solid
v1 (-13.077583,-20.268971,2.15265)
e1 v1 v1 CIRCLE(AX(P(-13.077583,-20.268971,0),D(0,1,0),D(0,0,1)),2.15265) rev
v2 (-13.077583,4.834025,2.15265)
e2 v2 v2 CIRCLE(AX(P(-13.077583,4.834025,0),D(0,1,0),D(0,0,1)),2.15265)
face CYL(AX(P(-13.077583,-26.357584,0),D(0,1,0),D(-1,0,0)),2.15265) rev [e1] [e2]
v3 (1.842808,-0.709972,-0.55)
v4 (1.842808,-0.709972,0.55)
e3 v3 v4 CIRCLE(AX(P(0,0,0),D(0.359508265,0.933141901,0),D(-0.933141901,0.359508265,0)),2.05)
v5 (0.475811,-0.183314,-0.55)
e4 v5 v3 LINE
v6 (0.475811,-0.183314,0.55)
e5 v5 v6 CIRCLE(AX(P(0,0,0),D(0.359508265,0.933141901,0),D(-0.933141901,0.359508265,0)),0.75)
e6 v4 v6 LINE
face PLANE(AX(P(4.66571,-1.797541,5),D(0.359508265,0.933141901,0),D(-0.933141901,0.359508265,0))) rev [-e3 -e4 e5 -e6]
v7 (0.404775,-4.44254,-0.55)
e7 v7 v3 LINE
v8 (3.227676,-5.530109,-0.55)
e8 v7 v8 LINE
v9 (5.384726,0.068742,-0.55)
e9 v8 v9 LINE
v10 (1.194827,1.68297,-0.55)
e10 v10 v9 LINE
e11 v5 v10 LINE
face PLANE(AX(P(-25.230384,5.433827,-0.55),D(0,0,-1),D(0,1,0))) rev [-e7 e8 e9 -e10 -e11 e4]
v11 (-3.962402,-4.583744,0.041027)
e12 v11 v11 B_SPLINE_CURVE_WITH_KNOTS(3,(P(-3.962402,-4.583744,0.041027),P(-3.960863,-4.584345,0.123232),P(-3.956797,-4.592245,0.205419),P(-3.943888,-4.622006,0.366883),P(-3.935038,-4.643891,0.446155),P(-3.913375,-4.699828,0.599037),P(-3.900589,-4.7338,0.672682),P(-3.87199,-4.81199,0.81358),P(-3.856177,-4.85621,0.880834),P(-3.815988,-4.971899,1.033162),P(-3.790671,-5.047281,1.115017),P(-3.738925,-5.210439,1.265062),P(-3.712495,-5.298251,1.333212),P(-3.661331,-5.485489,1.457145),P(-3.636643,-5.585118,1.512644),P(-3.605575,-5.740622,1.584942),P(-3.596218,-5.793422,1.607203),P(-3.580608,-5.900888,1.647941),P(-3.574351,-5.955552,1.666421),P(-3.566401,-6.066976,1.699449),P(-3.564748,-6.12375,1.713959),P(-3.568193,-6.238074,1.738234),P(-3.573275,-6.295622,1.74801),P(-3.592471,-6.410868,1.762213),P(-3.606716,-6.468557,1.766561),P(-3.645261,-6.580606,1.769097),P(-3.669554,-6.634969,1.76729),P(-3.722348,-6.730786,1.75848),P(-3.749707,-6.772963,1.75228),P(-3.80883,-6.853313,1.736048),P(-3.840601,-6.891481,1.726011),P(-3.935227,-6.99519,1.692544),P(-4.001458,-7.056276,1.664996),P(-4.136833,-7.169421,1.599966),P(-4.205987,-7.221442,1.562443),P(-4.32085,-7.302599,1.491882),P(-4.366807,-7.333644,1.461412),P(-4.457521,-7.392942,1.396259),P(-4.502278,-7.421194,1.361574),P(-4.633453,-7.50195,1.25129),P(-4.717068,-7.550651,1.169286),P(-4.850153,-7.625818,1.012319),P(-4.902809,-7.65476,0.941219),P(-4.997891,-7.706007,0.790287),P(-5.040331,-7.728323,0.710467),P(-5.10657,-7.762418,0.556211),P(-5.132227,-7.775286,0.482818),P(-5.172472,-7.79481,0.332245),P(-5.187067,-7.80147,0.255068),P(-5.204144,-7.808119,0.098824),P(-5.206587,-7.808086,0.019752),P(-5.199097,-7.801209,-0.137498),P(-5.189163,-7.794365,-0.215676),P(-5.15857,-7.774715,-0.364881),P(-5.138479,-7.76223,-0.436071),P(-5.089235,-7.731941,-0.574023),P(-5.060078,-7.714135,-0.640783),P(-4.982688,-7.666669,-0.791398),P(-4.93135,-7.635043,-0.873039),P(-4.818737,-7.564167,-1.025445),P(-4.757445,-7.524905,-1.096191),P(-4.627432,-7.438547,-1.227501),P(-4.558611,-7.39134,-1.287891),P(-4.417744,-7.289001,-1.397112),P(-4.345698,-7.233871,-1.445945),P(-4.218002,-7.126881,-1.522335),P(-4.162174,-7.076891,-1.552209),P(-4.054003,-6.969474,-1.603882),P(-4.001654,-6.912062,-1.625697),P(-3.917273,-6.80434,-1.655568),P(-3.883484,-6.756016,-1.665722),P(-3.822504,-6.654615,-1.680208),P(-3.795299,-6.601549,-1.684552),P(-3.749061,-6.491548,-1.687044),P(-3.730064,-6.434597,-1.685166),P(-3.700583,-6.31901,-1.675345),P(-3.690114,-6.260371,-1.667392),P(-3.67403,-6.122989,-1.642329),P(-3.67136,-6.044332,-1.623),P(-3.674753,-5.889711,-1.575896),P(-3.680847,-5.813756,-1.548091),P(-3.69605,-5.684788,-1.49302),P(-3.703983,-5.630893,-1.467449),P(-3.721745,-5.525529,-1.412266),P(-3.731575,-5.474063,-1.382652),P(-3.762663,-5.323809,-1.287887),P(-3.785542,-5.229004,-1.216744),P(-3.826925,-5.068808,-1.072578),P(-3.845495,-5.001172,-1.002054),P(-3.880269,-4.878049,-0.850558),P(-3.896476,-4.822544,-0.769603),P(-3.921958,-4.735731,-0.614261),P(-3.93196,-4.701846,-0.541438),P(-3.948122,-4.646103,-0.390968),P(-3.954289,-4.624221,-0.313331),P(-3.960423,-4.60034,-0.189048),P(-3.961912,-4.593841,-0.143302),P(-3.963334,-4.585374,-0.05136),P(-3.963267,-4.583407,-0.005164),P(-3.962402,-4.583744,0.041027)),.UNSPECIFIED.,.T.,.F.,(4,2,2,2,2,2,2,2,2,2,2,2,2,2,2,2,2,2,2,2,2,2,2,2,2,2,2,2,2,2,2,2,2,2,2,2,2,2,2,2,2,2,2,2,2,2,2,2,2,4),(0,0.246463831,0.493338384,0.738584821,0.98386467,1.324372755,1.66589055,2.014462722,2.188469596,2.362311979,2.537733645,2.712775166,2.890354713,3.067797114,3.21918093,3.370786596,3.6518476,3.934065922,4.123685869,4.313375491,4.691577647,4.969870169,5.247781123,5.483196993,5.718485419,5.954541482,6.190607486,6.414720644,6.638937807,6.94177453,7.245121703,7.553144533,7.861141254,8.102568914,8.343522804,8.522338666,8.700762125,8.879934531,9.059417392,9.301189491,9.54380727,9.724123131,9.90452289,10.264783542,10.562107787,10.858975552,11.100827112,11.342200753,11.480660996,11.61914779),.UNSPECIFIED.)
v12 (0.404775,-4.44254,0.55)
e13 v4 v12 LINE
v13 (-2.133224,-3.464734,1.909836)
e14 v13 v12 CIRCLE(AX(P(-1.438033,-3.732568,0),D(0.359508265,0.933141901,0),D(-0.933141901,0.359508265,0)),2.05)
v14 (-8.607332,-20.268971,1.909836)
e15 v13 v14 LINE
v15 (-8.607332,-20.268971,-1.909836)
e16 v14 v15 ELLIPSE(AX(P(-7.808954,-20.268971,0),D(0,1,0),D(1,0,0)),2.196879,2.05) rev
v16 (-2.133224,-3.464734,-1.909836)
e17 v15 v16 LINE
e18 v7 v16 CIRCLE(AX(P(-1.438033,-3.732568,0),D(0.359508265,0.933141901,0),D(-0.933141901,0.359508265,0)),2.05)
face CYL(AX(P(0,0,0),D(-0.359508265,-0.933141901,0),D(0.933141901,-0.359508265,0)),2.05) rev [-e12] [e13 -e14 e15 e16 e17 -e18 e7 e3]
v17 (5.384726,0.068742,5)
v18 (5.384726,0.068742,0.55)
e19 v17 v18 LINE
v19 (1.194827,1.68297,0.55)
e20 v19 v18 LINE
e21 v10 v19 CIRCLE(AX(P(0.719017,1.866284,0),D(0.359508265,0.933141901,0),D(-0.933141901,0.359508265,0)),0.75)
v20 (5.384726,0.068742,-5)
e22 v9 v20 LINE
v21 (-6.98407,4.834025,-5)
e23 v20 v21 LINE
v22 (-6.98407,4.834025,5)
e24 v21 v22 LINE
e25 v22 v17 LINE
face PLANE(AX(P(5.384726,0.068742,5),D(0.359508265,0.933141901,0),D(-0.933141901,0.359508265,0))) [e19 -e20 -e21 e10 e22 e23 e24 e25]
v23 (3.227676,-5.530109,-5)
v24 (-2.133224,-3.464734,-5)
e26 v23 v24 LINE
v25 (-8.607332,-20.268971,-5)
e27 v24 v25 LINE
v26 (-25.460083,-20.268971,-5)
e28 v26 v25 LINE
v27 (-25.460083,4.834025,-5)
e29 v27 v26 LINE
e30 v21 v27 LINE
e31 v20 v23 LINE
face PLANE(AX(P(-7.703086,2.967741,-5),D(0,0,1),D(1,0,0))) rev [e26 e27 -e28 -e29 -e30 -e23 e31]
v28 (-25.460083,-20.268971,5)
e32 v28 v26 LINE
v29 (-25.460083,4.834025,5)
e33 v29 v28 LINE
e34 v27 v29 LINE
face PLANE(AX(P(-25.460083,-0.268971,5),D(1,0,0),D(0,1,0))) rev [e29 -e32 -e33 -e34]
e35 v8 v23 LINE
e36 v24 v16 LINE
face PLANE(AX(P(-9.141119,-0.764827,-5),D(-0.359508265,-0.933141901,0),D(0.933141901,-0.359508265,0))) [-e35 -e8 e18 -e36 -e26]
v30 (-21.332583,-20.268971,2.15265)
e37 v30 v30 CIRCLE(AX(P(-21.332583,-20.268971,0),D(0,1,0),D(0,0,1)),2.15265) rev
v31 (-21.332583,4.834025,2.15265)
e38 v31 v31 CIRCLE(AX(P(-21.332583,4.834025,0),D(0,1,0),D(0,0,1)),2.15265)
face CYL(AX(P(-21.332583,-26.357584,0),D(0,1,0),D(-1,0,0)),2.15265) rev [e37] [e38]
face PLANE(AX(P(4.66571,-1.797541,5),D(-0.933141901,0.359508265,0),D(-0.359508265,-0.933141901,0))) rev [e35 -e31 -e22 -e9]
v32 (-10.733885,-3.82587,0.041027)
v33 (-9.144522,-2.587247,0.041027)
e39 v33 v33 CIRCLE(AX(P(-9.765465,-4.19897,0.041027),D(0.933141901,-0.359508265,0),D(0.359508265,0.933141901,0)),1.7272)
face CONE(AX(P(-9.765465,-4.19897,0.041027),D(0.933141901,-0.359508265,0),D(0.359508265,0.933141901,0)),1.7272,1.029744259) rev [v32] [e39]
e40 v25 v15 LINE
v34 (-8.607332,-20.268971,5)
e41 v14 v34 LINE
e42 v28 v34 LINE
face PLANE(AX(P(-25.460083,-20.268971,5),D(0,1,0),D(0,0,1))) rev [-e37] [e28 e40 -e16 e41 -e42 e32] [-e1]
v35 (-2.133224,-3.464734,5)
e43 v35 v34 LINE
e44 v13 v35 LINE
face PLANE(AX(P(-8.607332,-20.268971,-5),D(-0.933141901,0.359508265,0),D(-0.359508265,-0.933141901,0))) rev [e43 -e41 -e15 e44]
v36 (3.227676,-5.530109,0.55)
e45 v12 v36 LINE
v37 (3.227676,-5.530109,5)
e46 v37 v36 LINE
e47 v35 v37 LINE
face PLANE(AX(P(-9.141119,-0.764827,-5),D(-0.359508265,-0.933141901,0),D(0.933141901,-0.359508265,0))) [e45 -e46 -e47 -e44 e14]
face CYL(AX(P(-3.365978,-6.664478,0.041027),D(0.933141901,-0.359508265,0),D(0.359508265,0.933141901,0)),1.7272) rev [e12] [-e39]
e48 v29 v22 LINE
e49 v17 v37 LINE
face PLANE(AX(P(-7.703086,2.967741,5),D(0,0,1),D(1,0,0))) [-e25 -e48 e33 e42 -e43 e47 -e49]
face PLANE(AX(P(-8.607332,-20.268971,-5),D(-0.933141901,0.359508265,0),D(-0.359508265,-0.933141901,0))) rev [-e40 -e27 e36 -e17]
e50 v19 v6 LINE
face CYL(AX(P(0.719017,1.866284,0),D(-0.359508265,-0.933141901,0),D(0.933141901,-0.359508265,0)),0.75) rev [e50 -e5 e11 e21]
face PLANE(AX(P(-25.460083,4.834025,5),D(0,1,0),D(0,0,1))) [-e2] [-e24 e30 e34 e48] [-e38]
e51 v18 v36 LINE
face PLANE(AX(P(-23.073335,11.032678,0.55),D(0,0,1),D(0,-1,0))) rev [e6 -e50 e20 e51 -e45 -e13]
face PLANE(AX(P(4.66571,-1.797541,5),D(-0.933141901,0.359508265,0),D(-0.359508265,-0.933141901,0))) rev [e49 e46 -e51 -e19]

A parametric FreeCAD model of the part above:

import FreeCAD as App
import Part
import Sketcher
from FreeCAD import Vector
Q = App.Units.Quantity


def add_polygon(sketch, points):
    """Adds a closed chain of lines whose ends are joined by coincident constraints."""
    first, n = sketch.GeometryCount, len(points)
    for a, b in zip(points, points[1:] + points[:1]):
        sketch.addGeometry(Part.LineSegment(App.Vector(*a, 0), App.Vector(*b, 0)), False)
    for i in range(n):
        sketch.addConstraint(Sketcher.Constraint("Coincident", first + i, 2, first + (i + 1) % n, 1))

doc = App.newDocument("Part")
body = doc.addObject("PartDesign::Body", "Body")

# Sketch on XY plane
sketch1 = body.newObject("Sketcher::SketchObject", "Sketch")
sketch1.AttachmentSupport = (doc.getObject("XY_Plane"), [""])
sketch1.MapMode = "FlatFace"
add_polygon(sketch1, [(7.7, -3), (-7.7, 3), (-9, -0.3), (-25.5, -0.3), (-25.5, -20.3), (1, -20.3)])  # lines 0-5
sketch1.addConstraint([
    Sketcher.Constraint("Horizontal", 2),
    Sketcher.Constraint("Vertical", 3),
    Sketcher.Constraint("Horizontal", 4),
    Sketcher.Constraint("Symmetric", 0, 2, 5, 2, -1, 1),
    Sketcher.Constraint("Perpendicular", 0, 1),
    Sketcher.Constraint("Parallel", 1, 5),
    Sketcher.Constraint("DistanceY", 3, 2, 3, 1, Q("20 mm")),
    Sketcher.Constraint("DistanceX", 2, 2, 2, 1, Q("16.51 mm")),
    Sketcher.Constraint("Angle", 0, Q("158.93 deg")),
    Sketcher.Constraint("Distance", 0, Q("16.51 mm")),
    Sketcher.Constraint("DistanceY", 1, 2, -1, 1, Q("0.268971 mm")),
])
pad1 = body.newObject("PartDesign::Pad", "Pad")
pad1.Profile = sketch1
pad1.Length = 10
pad1.Midplane = True

# Sketch on XY plane
sketch2 = body.newObject("Sketcher::SketchObject", "Sketch001")
sketch2.AttachmentSupport = (doc.getObject("XY_Plane"), [""])
sketch2.MapMode = "FlatFace"
sketch2.AttachmentOffset = App.Placement(Vector(0, 0, 5), App.Rotation())
add_polygon(sketch2, [(7.7, -3), (-7.7, 3), (-9.1, -0.8), (-2.1, -3.5), (-8.6, -20.3), (1, -20.3)])  # lines 0-5
sketch2.addConstraint([
    Sketcher.Constraint("Horizontal", 4),
    Sketcher.Constraint("Symmetric", 0, 2, 5, 2, -1, 1),
    Sketcher.Constraint("Perpendicular", 0, 1),
    Sketcher.Constraint("Perpendicular", 1, 2),
    Sketcher.Constraint("Perpendicular", 2, 3),
    Sketcher.Constraint("Parallel", 3, 5),
    Sketcher.Constraint("Distance", 1, Q("4 mm")),
    Sketcher.Constraint("Angle", 0, Q("158.93 deg")),
    Sketcher.Constraint("Distance", 0, Q("16.51 mm")),
    Sketcher.Constraint("Distance", 2, Q("7.51 mm")),
    Sketcher.Constraint("DistanceY", 3, 2, -1, 1, Q("20.268971 mm")),
])
pocket1 = body.newObject("PartDesign::Pocket", "Pocket")
pocket1.Profile = sketch2
pocket1.Type = "ThroughAll"

# Sketch on XZ plane
sketch3 = body.newObject("Sketcher::SketchObject", "Sketch002")
sketch3.AttachmentSupport = (doc.getObject("XZ_Plane"), [""])
sketch3.MapMode = "FlatFace"
sketch3.AttachmentOffset = App.Placement(Vector(0, 0, 0.268971), App.Rotation())
sketch3.addGeometry(Part.Circle(Vector(-21.3, 0, 0), Vector(0, 0, 1), 2.2), False)
sketch3.addConstraint([
    Sketcher.Constraint("PointOnObject", 0, 3, -1),
    Sketcher.Constraint("Diameter", 0, Q("4.3053 mm")),
    Sketcher.Constraint("DistanceX", 0, 3, -1, 1, Q("21.332583 mm")),
])
pocket2 = body.newObject("PartDesign::Pocket", "Pocket001")
pocket2.Profile = sketch3
pocket2.Type = "UpToFirst"
pocket2.Reversed = True

# Sketch on XZ plane
sketch4 = body.newObject("Sketcher::SketchObject", "Sketch003")
sketch4.AttachmentSupport = (doc.getObject("XZ_Plane"), [""])
sketch4.MapMode = "FlatFace"
sketch4.AttachmentOffset = App.Placement(Vector(0, 0, 0.268971), App.Rotation())
sketch4.addGeometry(Part.Circle(Vector(-13.1, 0, 0), Vector(0, 0, 1), 2.2), False)
sketch4.addConstraint([
    Sketcher.Constraint("PointOnObject", 0, 3, -1),
    Sketcher.Constraint("Diameter", 0, Q("4.3053 mm")),
    Sketcher.Constraint("DistanceX", 0, 3, -1, 1, Q("13.077583 mm")),
])
pocket3 = body.newObject("PartDesign::Pocket", "Pocket002")
pocket3.Profile = sketch4
pocket3.Type = "UpToFirst"
pocket3.Reversed = True

# Sketch on an angled plane
sketch5 = body.newObject("Sketcher::SketchObject", "Sketch004")
sketch5.Placement = App.Placement(Vector(-1.438033, -3.732568, 0), App.Rotation(Vector(-0.933141901, 0.359508265, 0), Vector(0, 0, 1), Vector(0.359508265, 0.933141901, 0), "ZXY"))
add_polygon(sketch5, [(8.3, 5), (-5, 5), (-5, -5), (8.3, -5)])  # lines 0-3
sketch5.addGeometry(Part.Circle(Vector(0, 0, 0), Vector(0, 0, 1), 2), False)  # 4
sketch5.addConstraint([
    Sketcher.Constraint("Horizontal", 0),
    Sketcher.Constraint("Vertical", 1),
    Sketcher.Constraint("Horizontal", 2),
    Sketcher.Constraint("Vertical", 3),
    Sketcher.Constraint("Coincident", 4, 3, -1, 1),
    Sketcher.Constraint("Diameter", 4, Q("4.1 mm")),
    Sketcher.Constraint("DistanceY", 1, 2, 1, 1, Q("10 mm")),
    Sketcher.Constraint("DistanceX", 0, 2, -1, 1, Q("5 mm")),
    Sketcher.Constraint("DistanceY", -1, 1, 0, 2, Q("5 mm")),
    Sketcher.Constraint("DistanceX", 0, 2, 0, 1, Q("13.255 mm")),
])
pad2 = body.newObject("PartDesign::Pad", "Pad001")
pad2.Profile = sketch5
pad2.Length = 4

# Sketch on an angled plane
sketch6 = body.newObject("Sketcher::SketchObject", "Sketch005")
sketch6.Placement = App.Placement(Vector(0, 0, 0), App.Rotation(Vector(-0.933141901, 0.359508265, 0), Vector(0, 0, 1), Vector(0.359508265, 0.933141901, 0), "ZXY"))
add_polygon(sketch6, [(8.3, 5), (-5, 5), (-5, -5), (8.3, -5)])  # lines 0-3
sketch6.addGeometry(Part.Circle(Vector(0, 0, 0), Vector(0, 0, 1), 0.8), False)  # 4
sketch6.addConstraint([
    Sketcher.Constraint("Horizontal", 0),
    Sketcher.Constraint("Vertical", 1),
    Sketcher.Constraint("Horizontal", 2),
    Sketcher.Constraint("Vertical", 3),
    Sketcher.Constraint("Coincident", 4, 3, -1, 1),
    Sketcher.Constraint("Diameter", 4, Q("1.5 mm")),
    Sketcher.Constraint("DistanceY", 1, 2, 1, 1, Q("10 mm")),
    Sketcher.Constraint("DistanceX", 0, 2, -1, 1, Q("5 mm")),
    Sketcher.Constraint("DistanceY", -1, 1, 0, 2, Q("5 mm")),
    Sketcher.Constraint("DistanceX", 0, 2, 0, 1, Q("13.255 mm")),
])
pad3 = body.newObject("PartDesign::Pad", "Pad002")
pad3.Profile = sketch6
pad3.Length = 2

# Sketch on XZ plane
sketch7 = body.newObject("Sketcher::SketchObject", "Sketch006")
sketch7.AttachmentSupport = (doc.getObject("XZ_Plane"), [""])
sketch7.MapMode = "FlatFace"
sketch7.AttachmentOffset = App.Placement(Vector(0, 0, 0.268971), App.Rotation())
add_polygon(sketch7, [(-7, 5), (-7, -5), (-25.5, -5), (-25.5, 5)])  # lines 0-3
sketch7.addGeometry(Part.Circle(Vector(-13.1, 0, 0), Vector(0, 0, 1), 2.2), False)  # 4
sketch7.addGeometry(Part.Circle(Vector(-21.3, 0, 0), Vector(0, 0, 1), 2.2), False)  # 5
sketch7.addConstraint([
    Sketcher.Constraint("Vertical", 0),
    Sketcher.Constraint("Horizontal", 1),
    Sketcher.Constraint("Vertical", 2),
    Sketcher.Constraint("Horizontal", 3),
    Sketcher.Constraint("Equal", 4, 5),
    Sketcher.Constraint("PointOnObject", 4, 3, -1),
    Sketcher.Constraint("PointOnObject", 5, 3, -1),
    Sketcher.Constraint("DistanceY", 0, 2, 0, 1, Q("10 mm")),
    Sketcher.Constraint("DistanceY", 0, 2, -1, 1, Q("5 mm")),
    Sketcher.Constraint("Diameter", 4, Q("4.3053 mm")),
    Sketcher.Constraint("DistanceX", 5, 3, 4, 3, Q("8.255 mm")),
    Sketcher.Constraint("DistanceX", 1, 2, 5, 3, Q("4.1275 mm")),
    Sketcher.Constraint("DistanceX", 1, 2, 1, 1, Q("18.476013 mm")),
    Sketcher.Constraint("DistanceX", 0, 2, -1, 1, Q("6.98407 mm")),
])
pad4 = body.newObject("PartDesign::Pad", "Pad003")
pad4.Profile = sketch7
pad4.Length = 5.102995
pad4.Reversed = True

# Sketch on an angled plane
sketch8 = body.newObject("Sketcher::SketchObject", "Sketch007")
sketch8.Placement = App.Placement(Vector(-1.438033, -3.732568, 0), App.Rotation(Vector(0.933141901, -0.359508265, 0), Vector(0, 0, 1), Vector(-0.359508265, -0.933141901, 0), "ZXY"))
sketch8.addGeometry(Part.Circle(Vector(0, 0, 0), Vector(0, 0, 1), 2), False)
sketch8.addConstraint([
    Sketcher.Constraint("Coincident", 0, 3, -1, 1),
    Sketcher.Constraint("Diameter", 0, Q("4.1 mm")),
])
pocket4 = body.newObject("PartDesign::Pocket", "Pocket003")
pocket4.Profile = sketch8
pocket4.Type = "ThroughAll"
pocket4.Reversed = True

# Sketch on an angled plane
sketch9 = body.newObject("Sketcher::SketchObject", "Sketch008")
sketch9.Placement = App.Placement(Vector(4.66571, -1.797541, 0), App.Rotation(Vector(0, 0, -1), Vector(0.359508265, 0.933141901, 0), Vector(0.933141901, -0.359508265, 0), "ZXY"))
add_polygon(sketch9, [(-0.6, 2), (-0.6, -4), (0.6, -4), (0.6, 2)])  # lines 0-3
sketch9.addConstraint([
    Sketcher.Constraint("Vertical", 0),
    Sketcher.Constraint("Horizontal", 1),
    Sketcher.Constraint("Vertical", 2),
    Sketcher.Constraint("Horizontal", 3),
    Sketcher.Constraint("DistanceY", 0, 2, 0, 1, Q("6 mm")),
    Sketcher.Constraint("DistanceX", 1, 1, 1, 2, Q("1.1 mm")),
    Sketcher.Constraint("DistanceY", 0, 2, -1, 1, Q("4 mm")),
    Sketcher.Constraint("DistanceX", 0, 2, -1, 1, Q("0.55 mm")),
])
pocket5 = body.newObject("PartDesign::Pocket", "Pocket004")
pocket5.Profile = sketch9
pocket5.Length = 4.490098

# Sketch on an angled plane
sketch10 = body.newObject("Sketcher::SketchObject", "Sketch009")
sketch10.Placement = App.Placement(Vector(-0.695191, 0.267834, 0), App.Rotation(Vector(0, 0, -1), Vector(0.359508265, 0.933141901, 0), Vector(0.933141901, -0.359508265, 0), "ZXY"))
sketch10.addGeometry(Part.Circle(Vector(0, -7.4, 0), Vector(0, 0, 1), 1.7), False)
sketch10.addConstraint([
    Sketcher.Constraint("Diameter", 0, Q("3.4544 mm")),
    Sketcher.Constraint("DistanceY", 0, 3, -1, 1, Q("7.429 mm")),
    Sketcher.Constraint("DistanceX", 0, 3, -1, 1, Q("0.041027 mm")),
])
doc.recompute()
hole = body.newObject("PartDesign::Hole", "Hole")
hole.Profile = sketch10
hole.ThreadType = "None"
hole.Diameter = 3.4544
hole.DepthType = "Dimension"
hole.Depth = 6.858
hole.DrillPoint = "Angled"
hole.DrillPointAngle = 118

doc.recompute()
